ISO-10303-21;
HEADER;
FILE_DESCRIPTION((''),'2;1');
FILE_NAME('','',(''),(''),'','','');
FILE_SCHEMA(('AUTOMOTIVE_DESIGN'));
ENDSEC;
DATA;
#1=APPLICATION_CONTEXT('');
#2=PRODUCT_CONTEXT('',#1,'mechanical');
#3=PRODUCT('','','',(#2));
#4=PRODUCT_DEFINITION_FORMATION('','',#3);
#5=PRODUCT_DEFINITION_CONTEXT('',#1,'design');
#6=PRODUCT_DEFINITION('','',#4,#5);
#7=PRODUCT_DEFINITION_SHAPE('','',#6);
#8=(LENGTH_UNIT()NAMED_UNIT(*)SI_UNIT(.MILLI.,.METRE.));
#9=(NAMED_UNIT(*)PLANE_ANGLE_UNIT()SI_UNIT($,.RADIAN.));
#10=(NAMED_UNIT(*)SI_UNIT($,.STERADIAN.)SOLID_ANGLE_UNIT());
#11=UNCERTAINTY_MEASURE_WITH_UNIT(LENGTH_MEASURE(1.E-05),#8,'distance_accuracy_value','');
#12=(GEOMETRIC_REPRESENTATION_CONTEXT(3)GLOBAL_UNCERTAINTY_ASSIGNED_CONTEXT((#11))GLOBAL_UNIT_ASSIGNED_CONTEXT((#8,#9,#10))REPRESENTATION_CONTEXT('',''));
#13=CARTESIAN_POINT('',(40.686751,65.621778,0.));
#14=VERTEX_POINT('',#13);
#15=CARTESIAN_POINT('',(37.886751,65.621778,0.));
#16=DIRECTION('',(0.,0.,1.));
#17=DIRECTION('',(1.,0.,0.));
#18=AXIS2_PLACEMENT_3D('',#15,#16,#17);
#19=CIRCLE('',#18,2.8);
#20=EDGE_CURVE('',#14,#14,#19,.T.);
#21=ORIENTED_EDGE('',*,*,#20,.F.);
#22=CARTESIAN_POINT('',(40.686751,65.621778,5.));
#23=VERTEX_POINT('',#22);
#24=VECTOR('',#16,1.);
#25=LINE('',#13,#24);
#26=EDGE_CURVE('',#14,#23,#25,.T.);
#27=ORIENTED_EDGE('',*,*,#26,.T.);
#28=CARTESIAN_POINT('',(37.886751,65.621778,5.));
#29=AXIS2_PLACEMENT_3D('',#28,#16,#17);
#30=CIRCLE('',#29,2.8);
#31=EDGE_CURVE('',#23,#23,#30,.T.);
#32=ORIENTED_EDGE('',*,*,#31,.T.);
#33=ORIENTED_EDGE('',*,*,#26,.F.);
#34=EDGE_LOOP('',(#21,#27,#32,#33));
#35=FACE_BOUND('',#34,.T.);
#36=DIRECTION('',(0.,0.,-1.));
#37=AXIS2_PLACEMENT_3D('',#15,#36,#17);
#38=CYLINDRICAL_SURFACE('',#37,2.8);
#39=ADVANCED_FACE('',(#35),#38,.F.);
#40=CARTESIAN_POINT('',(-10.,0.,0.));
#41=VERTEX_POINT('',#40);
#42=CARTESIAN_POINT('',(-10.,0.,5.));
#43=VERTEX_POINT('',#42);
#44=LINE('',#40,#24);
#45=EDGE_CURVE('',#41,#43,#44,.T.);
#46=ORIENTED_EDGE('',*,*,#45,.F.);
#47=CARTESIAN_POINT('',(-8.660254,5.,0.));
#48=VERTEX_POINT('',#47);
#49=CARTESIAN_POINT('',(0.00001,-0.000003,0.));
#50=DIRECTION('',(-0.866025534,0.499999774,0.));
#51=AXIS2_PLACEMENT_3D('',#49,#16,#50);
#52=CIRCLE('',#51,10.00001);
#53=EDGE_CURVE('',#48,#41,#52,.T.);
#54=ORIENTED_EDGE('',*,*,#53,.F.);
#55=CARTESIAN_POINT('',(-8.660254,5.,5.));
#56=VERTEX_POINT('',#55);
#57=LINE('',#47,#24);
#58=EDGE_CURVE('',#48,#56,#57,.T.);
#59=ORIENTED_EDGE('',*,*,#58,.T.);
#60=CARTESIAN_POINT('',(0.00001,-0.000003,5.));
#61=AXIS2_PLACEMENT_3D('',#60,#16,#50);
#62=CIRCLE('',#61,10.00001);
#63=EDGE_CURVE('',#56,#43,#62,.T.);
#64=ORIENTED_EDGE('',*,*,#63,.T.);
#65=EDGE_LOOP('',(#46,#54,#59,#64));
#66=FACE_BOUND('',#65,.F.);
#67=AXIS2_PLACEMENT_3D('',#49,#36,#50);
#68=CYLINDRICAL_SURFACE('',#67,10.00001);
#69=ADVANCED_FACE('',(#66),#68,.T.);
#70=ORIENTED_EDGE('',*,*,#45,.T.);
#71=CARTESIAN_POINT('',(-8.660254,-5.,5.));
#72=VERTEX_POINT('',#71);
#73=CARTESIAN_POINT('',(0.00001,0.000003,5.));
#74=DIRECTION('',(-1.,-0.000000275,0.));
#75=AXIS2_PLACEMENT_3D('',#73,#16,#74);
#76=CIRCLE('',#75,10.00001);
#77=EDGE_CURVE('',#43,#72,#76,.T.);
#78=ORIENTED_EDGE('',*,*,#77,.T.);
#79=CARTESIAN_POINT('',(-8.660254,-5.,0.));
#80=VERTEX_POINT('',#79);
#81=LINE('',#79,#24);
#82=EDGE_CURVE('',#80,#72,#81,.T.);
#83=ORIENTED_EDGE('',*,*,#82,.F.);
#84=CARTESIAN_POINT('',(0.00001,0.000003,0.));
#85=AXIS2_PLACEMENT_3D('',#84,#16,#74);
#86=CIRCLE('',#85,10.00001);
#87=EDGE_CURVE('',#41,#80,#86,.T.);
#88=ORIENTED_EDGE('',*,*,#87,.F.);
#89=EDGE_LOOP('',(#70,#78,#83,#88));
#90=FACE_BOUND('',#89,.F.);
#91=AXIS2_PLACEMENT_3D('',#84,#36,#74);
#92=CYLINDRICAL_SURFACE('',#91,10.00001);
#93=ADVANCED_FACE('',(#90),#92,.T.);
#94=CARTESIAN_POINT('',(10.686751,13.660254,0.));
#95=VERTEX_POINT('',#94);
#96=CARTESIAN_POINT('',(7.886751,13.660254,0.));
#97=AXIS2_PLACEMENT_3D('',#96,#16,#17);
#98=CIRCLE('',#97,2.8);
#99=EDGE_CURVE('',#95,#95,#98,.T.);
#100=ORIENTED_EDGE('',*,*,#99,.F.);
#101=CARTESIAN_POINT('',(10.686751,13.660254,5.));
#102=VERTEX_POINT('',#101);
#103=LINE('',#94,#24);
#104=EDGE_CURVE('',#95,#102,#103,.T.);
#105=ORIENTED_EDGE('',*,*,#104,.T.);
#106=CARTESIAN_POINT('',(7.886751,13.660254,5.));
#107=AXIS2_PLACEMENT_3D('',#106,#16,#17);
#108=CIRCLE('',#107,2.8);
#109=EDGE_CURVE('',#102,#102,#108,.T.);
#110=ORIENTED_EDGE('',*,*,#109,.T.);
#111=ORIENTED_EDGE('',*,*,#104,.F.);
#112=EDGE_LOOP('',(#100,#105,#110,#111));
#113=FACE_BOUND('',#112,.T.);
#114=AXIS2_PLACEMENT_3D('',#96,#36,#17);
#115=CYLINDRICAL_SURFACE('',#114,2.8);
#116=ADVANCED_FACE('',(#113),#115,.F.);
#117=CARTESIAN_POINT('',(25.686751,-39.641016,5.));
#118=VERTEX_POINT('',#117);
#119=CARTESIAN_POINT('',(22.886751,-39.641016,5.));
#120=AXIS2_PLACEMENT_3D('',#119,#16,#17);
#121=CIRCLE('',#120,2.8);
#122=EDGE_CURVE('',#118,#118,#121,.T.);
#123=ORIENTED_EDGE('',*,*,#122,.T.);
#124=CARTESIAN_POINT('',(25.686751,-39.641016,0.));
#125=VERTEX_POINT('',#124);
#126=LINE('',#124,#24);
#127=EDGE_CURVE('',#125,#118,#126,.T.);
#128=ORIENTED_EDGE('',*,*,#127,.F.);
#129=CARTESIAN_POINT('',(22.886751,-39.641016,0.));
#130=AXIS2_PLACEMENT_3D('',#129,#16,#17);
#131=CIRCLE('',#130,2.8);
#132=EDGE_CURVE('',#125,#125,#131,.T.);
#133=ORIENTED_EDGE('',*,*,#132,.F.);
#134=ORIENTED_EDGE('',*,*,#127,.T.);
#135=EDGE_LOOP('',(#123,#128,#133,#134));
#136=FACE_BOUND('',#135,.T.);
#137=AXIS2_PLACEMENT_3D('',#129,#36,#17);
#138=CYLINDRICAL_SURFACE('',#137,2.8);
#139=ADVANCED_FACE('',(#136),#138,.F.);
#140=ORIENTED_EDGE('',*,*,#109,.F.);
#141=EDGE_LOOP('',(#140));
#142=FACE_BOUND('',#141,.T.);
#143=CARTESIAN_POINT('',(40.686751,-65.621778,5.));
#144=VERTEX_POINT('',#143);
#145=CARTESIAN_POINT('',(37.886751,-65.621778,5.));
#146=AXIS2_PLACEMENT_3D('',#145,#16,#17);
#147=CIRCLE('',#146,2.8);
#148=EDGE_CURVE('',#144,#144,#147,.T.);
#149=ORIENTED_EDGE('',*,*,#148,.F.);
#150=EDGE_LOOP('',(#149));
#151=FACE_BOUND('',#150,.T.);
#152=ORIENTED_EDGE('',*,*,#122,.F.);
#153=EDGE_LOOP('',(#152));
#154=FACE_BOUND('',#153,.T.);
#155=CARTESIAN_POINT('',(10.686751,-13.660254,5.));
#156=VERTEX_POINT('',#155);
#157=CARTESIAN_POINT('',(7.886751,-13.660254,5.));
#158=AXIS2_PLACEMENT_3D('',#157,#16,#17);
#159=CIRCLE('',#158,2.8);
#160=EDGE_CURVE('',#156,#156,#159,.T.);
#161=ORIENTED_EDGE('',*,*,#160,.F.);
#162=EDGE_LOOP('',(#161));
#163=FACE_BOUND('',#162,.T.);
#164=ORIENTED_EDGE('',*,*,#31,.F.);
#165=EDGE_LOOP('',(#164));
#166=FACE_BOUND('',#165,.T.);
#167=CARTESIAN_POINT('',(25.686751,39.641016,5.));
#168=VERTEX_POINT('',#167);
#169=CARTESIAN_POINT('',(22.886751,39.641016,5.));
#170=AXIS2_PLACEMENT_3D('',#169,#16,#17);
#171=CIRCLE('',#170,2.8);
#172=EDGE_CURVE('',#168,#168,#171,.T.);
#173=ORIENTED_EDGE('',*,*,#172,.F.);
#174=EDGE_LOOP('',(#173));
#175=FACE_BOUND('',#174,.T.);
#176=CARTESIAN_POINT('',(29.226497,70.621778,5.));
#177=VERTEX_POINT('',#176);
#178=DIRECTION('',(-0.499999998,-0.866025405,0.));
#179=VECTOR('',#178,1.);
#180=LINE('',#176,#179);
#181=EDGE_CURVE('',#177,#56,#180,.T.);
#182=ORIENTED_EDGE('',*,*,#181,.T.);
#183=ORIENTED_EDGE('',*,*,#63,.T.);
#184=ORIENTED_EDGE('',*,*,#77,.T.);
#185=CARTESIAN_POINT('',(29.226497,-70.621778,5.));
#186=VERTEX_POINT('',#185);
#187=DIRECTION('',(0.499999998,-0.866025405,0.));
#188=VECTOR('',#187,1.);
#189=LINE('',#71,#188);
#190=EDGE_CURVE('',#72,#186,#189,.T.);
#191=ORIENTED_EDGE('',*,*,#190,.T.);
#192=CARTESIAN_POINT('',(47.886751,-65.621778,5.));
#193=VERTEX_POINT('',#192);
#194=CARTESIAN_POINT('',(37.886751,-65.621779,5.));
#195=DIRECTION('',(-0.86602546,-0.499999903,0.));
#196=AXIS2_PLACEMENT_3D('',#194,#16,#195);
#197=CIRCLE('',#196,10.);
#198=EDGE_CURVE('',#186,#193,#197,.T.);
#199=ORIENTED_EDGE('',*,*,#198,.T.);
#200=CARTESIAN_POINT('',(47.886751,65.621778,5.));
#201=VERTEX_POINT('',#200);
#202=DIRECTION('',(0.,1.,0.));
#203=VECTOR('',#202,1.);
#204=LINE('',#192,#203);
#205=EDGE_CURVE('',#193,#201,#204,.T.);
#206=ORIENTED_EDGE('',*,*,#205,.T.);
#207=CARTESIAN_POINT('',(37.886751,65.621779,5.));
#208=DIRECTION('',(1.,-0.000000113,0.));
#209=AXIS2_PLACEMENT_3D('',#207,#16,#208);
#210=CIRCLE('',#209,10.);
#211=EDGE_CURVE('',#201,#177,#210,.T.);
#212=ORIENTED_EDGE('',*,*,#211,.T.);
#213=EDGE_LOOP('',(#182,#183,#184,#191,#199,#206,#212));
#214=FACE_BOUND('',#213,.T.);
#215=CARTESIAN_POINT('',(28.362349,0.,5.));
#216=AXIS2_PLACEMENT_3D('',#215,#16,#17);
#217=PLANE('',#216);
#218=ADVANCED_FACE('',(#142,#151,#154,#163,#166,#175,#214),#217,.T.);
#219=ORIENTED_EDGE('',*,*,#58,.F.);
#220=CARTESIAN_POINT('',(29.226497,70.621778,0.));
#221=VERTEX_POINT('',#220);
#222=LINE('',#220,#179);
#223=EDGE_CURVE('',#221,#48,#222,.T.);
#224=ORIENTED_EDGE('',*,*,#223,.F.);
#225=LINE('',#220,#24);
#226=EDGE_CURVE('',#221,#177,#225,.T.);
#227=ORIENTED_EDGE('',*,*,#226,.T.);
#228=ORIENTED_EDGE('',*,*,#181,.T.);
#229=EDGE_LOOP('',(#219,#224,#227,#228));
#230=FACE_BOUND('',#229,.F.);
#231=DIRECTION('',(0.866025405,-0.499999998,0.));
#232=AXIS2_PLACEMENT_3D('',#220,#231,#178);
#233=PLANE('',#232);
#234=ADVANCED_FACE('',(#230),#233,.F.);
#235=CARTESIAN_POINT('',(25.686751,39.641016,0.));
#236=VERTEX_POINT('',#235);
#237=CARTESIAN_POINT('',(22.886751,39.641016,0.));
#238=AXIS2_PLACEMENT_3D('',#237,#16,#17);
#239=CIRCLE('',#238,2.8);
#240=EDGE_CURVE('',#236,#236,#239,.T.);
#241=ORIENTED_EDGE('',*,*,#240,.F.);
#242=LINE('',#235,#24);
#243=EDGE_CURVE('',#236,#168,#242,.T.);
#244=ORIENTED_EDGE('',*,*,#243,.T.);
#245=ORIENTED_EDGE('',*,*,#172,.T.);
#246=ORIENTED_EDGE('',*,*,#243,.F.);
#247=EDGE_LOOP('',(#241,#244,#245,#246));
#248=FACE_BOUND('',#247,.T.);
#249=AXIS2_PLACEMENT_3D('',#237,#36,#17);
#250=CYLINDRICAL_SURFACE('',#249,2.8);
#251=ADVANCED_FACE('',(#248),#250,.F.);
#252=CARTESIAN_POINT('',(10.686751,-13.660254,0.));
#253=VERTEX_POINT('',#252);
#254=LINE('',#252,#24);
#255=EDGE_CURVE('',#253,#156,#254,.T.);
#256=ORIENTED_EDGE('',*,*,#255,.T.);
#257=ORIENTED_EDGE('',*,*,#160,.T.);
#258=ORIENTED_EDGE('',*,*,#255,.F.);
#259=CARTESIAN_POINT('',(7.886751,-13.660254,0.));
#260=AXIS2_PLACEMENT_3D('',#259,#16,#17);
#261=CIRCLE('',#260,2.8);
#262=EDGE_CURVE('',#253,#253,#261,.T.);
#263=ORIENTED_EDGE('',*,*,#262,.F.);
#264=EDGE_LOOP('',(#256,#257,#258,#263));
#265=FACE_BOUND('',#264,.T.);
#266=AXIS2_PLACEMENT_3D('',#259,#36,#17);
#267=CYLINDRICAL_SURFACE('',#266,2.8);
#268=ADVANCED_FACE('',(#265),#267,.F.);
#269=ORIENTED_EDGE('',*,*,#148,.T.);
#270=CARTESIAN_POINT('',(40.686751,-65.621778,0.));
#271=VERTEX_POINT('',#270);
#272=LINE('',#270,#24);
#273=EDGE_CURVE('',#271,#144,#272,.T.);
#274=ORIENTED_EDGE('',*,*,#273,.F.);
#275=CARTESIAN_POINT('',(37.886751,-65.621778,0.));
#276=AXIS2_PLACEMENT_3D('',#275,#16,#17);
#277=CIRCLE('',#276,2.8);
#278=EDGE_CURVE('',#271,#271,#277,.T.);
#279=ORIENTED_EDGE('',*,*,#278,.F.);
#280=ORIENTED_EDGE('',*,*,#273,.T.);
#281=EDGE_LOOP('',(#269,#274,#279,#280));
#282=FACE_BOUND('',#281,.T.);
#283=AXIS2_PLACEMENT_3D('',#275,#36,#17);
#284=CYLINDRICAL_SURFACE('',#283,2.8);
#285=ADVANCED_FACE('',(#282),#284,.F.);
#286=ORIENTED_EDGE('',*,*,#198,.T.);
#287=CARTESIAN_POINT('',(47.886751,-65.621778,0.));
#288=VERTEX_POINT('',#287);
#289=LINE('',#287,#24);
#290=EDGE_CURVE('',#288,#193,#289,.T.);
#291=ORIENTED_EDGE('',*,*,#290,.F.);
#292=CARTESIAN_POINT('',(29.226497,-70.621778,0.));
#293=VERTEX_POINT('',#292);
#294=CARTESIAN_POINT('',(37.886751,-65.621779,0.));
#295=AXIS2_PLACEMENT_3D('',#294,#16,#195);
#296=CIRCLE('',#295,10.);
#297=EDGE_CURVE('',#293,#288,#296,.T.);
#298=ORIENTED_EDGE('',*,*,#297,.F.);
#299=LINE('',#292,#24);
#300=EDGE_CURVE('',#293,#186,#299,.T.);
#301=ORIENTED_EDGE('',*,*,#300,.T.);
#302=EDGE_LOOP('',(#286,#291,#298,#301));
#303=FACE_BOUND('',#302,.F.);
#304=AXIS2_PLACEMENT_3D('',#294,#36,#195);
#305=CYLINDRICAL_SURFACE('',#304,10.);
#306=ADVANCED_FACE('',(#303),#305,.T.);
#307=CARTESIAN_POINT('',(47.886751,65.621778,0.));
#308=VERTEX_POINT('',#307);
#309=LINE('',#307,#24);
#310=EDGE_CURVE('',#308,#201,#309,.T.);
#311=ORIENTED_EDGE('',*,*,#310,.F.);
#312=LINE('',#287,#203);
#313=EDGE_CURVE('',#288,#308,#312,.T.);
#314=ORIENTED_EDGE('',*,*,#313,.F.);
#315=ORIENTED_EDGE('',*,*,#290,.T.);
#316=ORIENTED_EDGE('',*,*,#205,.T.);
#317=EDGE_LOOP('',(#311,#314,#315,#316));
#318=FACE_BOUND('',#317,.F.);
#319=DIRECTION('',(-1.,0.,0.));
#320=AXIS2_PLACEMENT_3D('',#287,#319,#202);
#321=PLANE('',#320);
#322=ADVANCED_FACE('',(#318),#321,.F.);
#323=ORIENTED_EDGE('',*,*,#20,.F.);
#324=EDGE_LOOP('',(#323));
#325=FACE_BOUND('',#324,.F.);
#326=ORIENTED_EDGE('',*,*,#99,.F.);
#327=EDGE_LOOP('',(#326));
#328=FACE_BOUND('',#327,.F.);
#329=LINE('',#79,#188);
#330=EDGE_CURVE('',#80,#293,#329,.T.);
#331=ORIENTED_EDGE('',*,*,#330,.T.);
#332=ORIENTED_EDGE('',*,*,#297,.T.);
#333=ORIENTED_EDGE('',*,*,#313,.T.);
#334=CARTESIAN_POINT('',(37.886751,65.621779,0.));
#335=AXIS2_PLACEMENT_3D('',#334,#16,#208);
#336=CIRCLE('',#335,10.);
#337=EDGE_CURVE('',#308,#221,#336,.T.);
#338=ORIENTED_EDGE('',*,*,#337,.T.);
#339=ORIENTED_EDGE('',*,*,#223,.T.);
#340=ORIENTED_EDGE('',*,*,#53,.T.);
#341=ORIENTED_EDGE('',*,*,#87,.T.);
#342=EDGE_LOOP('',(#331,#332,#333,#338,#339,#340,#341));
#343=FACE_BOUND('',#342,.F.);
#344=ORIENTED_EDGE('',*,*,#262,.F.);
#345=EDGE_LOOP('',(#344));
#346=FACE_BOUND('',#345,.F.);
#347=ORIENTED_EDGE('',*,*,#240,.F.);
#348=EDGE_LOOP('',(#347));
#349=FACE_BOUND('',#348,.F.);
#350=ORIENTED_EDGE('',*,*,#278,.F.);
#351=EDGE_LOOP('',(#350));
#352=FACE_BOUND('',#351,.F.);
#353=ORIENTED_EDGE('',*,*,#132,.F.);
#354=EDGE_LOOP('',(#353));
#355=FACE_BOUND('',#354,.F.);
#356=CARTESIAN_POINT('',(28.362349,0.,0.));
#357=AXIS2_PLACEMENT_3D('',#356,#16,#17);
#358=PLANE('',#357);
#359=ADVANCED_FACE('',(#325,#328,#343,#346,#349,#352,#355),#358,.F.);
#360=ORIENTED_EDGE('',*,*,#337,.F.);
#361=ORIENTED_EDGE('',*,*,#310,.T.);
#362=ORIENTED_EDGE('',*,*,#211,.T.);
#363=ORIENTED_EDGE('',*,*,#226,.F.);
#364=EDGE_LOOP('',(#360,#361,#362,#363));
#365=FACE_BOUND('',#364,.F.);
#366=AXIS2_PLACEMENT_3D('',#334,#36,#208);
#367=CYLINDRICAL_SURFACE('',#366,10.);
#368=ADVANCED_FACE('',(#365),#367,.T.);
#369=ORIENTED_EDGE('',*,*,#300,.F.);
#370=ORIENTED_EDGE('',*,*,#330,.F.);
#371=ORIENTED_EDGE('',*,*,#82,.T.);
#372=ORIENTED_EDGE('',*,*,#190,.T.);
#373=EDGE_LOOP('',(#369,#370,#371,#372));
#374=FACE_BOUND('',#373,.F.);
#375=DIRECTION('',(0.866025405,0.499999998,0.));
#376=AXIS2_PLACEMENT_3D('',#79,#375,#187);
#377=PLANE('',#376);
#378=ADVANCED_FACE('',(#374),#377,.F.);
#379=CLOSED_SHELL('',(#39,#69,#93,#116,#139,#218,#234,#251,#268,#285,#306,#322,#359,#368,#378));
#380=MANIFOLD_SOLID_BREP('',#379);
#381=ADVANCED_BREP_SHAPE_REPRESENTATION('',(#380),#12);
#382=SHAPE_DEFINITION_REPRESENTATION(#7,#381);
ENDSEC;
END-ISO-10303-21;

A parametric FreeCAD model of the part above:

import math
import FreeCAD as App
import Part
import Sketcher
Q = App.Units.Quantity

doc = App.newDocument("Part")
body = doc.addObject("PartDesign::Body", "Body")

# Sketch on XY plane
sketch1 = body.newObject("Sketcher::SketchObject", "Sketch")
sketch1.AttachmentSupport = (doc.getObject("XY_Plane"), [""])
sketch1.MapMode = "FlatFace"
sketch1.addGeometry([
    Part.LineSegment(App.Vector(47.886751, -65.621778, 0), App.Vector(47.886751, 65.621778, 0)),  # 0
    Part.ArcOfCircle(Part.Circle(App.Vector(37.886751, 65.621779, 0), App.Vector(0, 0, 1), 10), math.radians(-0.000006), math.radians(150.000006)),  # 1
    Part.LineSegment(App.Vector(29.226497, 70.621778, 0), App.Vector(-8.660254, 5, 0)),  # 2
    Part.ArcOfCircle(Part.Circle(App.Vector(0.00001, -0.000003, 0), App.Vector(0, 0, 1), 10.00001), math.radians(150.000015), math.radians(179.999984)),  # 3
    Part.ArcOfCircle(Part.Circle(App.Vector(0.00001, 0.000003, 0), App.Vector(0, 0, 1), 10.00001), math.radians(-179.999984), math.radians(-150.000015)),  # 4
    Part.LineSegment(App.Vector(-8.660254, -5, 0), App.Vector(29.226497, -70.621778, 0)),  # 5
    Part.ArcOfCircle(Part.Circle(App.Vector(37.886751, -65.621779, 0), App.Vector(0, 0, 1), 10), math.radians(-150.000006), math.radians(0.000006)),  # 6
    Part.Circle(App.Vector(7.886751, -13.660254, 0), App.Vector(0, 0, 1), 2.8),  # 7
    Part.Circle(App.Vector(22.886751, -39.641016, 0), App.Vector(0, 0, 1), 2.8),  # 8
    Part.Circle(App.Vector(37.886751, -65.621778, 0), App.Vector(0, 0, 1), 2.8),  # 9
    Part.Circle(App.Vector(7.886751, 13.660254, 0), App.Vector(0, 0, 1), 2.8),  # 10
    Part.Circle(App.Vector(22.886751, 39.641016, 0), App.Vector(0, 0, 1), 2.8),  # 11
    Part.Circle(App.Vector(37.886751, 65.621778, 0), App.Vector(0, 0, 1), 2.8),  # 12
], False)
sketch1.addConstraint([
    Sketcher.Constraint("Tangent", 0, 2, 1, 1),
    Sketcher.Constraint("Tangent", 1, 2, 2, 1),
    Sketcher.Constraint("Tangent", 2, 2, 3, 1),
    Sketcher.Constraint("Tangent", 3, 2, 4, 1),
    Sketcher.Constraint("Tangent", 4, 2, 5, 1),
    Sketcher.Constraint("Tangent", 5, 2, 6, 1),
    Sketcher.Constraint("Tangent", 6, 2, 0, 1),
    Sketcher.Constraint("Vertical", 0),
    Sketcher.Constraint("Coincident", 9, 3, 6, 3),
    Sketcher.Constraint("Coincident", 12, 3, 1, 3),
    Sketcher.Constraint("Equal", 3, 4),
    Sketcher.Constraint("Equal", 1, 6),
    Sketcher.Constraint("Equal", 7, 8),
    Sketcher.Constraint("Equal", 8, 9),
    Sketcher.Constraint("Equal", 9, 10),
    Sketcher.Constraint("Equal", 10, 11),
    Sketcher.Constraint("Equal", 11, 12),
    Sketcher.Constraint("Symmetric", 7, 3, 10, 3, -1),
    Sketcher.Constraint("Symmetric", 8, 3, 11, 3, -1),
    Sketcher.Constraint("Symmetric", 2, 2, 4, 2, -1),
    Sketcher.Constraint("PointOnObject", 3, 2, -1),
    Sketcher.Constraint("Radius", 1, Q("10 mm")),
    Sketcher.Constraint("Diameter", 7, Q("5.6 mm")),
    Sketcher.Constraint("Angle", 2, Q("-120 deg")),
    Sketcher.Constraint("DistanceY", -1, 1, 2, 2, Q("5 mm")),
    Sketcher.Constraint("DistanceX", 3, 2, -1, 1, Q("10 mm")),
    Sketcher.Constraint("DistanceX", 7, 3, 6, 3, Q("30 mm")),
    Sketcher.Constraint("DistanceX", 7, 3, 8, 3, Q("15 mm")),
    Sketcher.Constraint("DistanceY", 0, 1, 0, 2, Q("131.243556 mm")),
    Sketcher.Constraint("DistanceY", 7, 3, 3, 3, Q("13.660251 mm")),
    Sketcher.Constraint("DistanceY", 8, 3, 7, 3, Q("25.980762 mm")),
])
pad1 = body.newObject("PartDesign::Pad", "Pad")
pad1.Profile = sketch1
pad1.Length = 5

doc.recompute()
